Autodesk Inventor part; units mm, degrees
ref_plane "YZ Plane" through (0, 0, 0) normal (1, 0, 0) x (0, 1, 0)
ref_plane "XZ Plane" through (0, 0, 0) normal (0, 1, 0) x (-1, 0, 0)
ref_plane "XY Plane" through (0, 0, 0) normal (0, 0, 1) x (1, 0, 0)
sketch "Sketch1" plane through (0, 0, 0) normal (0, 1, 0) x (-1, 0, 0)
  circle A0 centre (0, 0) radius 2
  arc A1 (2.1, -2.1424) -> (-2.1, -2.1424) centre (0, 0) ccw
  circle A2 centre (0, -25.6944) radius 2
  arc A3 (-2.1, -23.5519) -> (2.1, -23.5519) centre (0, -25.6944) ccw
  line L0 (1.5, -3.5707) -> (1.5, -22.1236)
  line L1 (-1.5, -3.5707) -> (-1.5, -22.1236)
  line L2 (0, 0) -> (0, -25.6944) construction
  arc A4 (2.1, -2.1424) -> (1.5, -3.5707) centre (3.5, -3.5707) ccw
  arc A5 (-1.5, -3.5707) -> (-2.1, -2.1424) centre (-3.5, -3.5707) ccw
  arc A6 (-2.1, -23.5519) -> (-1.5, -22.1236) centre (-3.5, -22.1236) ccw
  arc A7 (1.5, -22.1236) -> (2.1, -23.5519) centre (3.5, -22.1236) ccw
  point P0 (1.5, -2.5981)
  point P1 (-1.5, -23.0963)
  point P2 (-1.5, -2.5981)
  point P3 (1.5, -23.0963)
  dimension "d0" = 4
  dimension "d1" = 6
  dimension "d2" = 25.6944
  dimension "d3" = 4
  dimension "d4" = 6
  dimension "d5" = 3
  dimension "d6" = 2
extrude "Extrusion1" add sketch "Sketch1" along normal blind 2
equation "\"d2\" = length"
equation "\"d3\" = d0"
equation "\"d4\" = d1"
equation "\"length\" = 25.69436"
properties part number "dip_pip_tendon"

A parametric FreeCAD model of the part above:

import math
import FreeCAD as App
import Part
import Sketcher
from FreeCAD import Vector

doc = App.newDocument("Part")
body = doc.addObject("PartDesign::Body", "Body")

# Sketch on XZ plane
sketch1 = body.newObject("Sketcher::SketchObject", "Sketch")
sketch1.AttachmentSupport = (doc.getObject("XZ_Plane"), [""])
sketch1.MapMode = "FlatFace"
sketch1.addGeometry([
    Part.ArcOfCircle(Part.Circle(Vector(-3.5, -3.5707, 0), Vector(0, 0, 1), 2.00001), math.radians(0), math.radians(45.573283)),  # 0
    Part.ArcOfCircle(Part.Circle(Vector(0, 0, 0), Vector(0, 0, 1), 2.99998), math.radians(-45.572615), math.radians(225.572615)),  # 1
    Part.ArcOfCircle(Part.Circle(Vector(3.5, -3.5707, 0), Vector(0, 0, 1), 2), math.radians(134.426717), math.radians(180)),  # 2
    Part.LineSegment(Vector(1.5, -3.5707, 0), Vector(1.5, -22.1236, 0)),  # 3
    Part.ArcOfCircle(Part.Circle(Vector(3.5, -22.1236, 0), Vector(0, 0, 1), 2.00001), math.radians(180), math.radians(225.573283)),  # 4
    Part.ArcOfCircle(Part.Circle(Vector(0, -25.6944, 0), Vector(0, 0, 1), 3.000051), math.radians(134.426049), math.radians(405.573951)),  # 5
    Part.ArcOfCircle(Part.Circle(Vector(-3.5, -22.1236, 0), Vector(0, 0, 1), 2), math.radians(-45.573283), math.radians(0)),  # 6
    Part.LineSegment(Vector(-1.5, -22.1236, 0), Vector(-1.5, -3.5707, 0)),  # 7
    Part.Circle(Vector(0, -25.6944, 0), Vector(0, 0, 1), 2),  # 8
    Part.Circle(Vector(0, 0, 0), Vector(0, 0, 1), 2),  # 9
], False)
sketch1.addConstraint([
    Sketcher.Constraint("Tangent", 0, 2, 1, 2),
    Sketcher.Constraint("Tangent", 1, 1, 2, 1),
    Sketcher.Constraint("Tangent", 2, 2, 3, 1),
    Sketcher.Constraint("Tangent", 3, 2, 4, 1),
    Sketcher.Constraint("Tangent", 4, 2, 5, 2),
    Sketcher.Constraint("Tangent", 5, 1, 6, 1),
    Sketcher.Constraint("Tangent", 6, 2, 7, 1),
    Sketcher.Constraint("Tangent", 7, 2, 0, 1),
    Sketcher.Constraint("Vertical", 3),
    Sketcher.Constraint("Vertical", 7),
    Sketcher.Constraint("Coincident", 1, 3, -1, 1),
    Sketcher.Constraint("Coincident", 9, 3, -1, 1),
    Sketcher.Constraint("Coincident", 8, 3, 5, 3),
    Sketcher.Constraint("Equal", 0, 2),
    Sketcher.Constraint("Equal", 2, 4),
    Sketcher.Constraint("Equal", 1, 5),
    Sketcher.Constraint("Equal", 4, 6),
    Sketcher.Constraint("Equal", 6, 8),
    Sketcher.Constraint("Equal", 8, 9),
    Sketcher.Constraint("Symmetric", 4, 3, 6, 3, -2),
    Sketcher.Constraint("Diameter", 8, 4.0),
    Sketcher.Constraint("Radius", 1, 3.0),
    Sketcher.Constraint("DistanceX", 6, 2, 3, 2, 3.0),
    Sketcher.Constraint("DistanceY", 5, 3, -1, 1, 25.6944),
])
pad1 = body.newObject("PartDesign::Pad", "Pad")
pad1.Profile = sketch1
pad1.Length = 2
pad1.Reversed = True

doc.recompute()
